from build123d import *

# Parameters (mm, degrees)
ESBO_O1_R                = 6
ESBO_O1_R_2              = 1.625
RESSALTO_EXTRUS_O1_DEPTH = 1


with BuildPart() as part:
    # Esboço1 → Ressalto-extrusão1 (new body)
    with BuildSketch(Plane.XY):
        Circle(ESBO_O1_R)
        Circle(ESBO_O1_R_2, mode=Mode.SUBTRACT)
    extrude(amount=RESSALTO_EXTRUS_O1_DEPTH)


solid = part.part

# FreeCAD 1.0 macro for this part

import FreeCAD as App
import Part
import Sketcher

doc = App.newDocument("Part")
body = doc.addObject("PartDesign::Body", "Body")

# Sketch on XY plane
sketch1 = body.newObject("Sketcher::SketchObject", "Sketch")
sketch1.AttachmentSupport = (doc.getObject("XY_Plane"), [""])
sketch1.MapMode = "FlatFace"
sketch1.addGeometry([
    Part.Circle(App.Vector(0, 0, 0), App.Vector(0, 0, 1), 6),
    Part.Circle(App.Vector(0, 0, 0), App.Vector(0, 0, 1), 1.6),
], False)
sketch1.addConstraint([
    Sketcher.Constraint("Coincident", 0, 3, -1, 1),
    Sketcher.Constraint("Coincident", 1, 3, -1, 1),
    Sketcher.Constraint("Diameter", 0, 12.0),
    Sketcher.Constraint("Diameter", 1, 3.25),
])
pad1 = body.newObject("PartDesign::Pad", "Pad")
pad1.Profile = sketch1
pad1.Length = 1

doc.recompute()
